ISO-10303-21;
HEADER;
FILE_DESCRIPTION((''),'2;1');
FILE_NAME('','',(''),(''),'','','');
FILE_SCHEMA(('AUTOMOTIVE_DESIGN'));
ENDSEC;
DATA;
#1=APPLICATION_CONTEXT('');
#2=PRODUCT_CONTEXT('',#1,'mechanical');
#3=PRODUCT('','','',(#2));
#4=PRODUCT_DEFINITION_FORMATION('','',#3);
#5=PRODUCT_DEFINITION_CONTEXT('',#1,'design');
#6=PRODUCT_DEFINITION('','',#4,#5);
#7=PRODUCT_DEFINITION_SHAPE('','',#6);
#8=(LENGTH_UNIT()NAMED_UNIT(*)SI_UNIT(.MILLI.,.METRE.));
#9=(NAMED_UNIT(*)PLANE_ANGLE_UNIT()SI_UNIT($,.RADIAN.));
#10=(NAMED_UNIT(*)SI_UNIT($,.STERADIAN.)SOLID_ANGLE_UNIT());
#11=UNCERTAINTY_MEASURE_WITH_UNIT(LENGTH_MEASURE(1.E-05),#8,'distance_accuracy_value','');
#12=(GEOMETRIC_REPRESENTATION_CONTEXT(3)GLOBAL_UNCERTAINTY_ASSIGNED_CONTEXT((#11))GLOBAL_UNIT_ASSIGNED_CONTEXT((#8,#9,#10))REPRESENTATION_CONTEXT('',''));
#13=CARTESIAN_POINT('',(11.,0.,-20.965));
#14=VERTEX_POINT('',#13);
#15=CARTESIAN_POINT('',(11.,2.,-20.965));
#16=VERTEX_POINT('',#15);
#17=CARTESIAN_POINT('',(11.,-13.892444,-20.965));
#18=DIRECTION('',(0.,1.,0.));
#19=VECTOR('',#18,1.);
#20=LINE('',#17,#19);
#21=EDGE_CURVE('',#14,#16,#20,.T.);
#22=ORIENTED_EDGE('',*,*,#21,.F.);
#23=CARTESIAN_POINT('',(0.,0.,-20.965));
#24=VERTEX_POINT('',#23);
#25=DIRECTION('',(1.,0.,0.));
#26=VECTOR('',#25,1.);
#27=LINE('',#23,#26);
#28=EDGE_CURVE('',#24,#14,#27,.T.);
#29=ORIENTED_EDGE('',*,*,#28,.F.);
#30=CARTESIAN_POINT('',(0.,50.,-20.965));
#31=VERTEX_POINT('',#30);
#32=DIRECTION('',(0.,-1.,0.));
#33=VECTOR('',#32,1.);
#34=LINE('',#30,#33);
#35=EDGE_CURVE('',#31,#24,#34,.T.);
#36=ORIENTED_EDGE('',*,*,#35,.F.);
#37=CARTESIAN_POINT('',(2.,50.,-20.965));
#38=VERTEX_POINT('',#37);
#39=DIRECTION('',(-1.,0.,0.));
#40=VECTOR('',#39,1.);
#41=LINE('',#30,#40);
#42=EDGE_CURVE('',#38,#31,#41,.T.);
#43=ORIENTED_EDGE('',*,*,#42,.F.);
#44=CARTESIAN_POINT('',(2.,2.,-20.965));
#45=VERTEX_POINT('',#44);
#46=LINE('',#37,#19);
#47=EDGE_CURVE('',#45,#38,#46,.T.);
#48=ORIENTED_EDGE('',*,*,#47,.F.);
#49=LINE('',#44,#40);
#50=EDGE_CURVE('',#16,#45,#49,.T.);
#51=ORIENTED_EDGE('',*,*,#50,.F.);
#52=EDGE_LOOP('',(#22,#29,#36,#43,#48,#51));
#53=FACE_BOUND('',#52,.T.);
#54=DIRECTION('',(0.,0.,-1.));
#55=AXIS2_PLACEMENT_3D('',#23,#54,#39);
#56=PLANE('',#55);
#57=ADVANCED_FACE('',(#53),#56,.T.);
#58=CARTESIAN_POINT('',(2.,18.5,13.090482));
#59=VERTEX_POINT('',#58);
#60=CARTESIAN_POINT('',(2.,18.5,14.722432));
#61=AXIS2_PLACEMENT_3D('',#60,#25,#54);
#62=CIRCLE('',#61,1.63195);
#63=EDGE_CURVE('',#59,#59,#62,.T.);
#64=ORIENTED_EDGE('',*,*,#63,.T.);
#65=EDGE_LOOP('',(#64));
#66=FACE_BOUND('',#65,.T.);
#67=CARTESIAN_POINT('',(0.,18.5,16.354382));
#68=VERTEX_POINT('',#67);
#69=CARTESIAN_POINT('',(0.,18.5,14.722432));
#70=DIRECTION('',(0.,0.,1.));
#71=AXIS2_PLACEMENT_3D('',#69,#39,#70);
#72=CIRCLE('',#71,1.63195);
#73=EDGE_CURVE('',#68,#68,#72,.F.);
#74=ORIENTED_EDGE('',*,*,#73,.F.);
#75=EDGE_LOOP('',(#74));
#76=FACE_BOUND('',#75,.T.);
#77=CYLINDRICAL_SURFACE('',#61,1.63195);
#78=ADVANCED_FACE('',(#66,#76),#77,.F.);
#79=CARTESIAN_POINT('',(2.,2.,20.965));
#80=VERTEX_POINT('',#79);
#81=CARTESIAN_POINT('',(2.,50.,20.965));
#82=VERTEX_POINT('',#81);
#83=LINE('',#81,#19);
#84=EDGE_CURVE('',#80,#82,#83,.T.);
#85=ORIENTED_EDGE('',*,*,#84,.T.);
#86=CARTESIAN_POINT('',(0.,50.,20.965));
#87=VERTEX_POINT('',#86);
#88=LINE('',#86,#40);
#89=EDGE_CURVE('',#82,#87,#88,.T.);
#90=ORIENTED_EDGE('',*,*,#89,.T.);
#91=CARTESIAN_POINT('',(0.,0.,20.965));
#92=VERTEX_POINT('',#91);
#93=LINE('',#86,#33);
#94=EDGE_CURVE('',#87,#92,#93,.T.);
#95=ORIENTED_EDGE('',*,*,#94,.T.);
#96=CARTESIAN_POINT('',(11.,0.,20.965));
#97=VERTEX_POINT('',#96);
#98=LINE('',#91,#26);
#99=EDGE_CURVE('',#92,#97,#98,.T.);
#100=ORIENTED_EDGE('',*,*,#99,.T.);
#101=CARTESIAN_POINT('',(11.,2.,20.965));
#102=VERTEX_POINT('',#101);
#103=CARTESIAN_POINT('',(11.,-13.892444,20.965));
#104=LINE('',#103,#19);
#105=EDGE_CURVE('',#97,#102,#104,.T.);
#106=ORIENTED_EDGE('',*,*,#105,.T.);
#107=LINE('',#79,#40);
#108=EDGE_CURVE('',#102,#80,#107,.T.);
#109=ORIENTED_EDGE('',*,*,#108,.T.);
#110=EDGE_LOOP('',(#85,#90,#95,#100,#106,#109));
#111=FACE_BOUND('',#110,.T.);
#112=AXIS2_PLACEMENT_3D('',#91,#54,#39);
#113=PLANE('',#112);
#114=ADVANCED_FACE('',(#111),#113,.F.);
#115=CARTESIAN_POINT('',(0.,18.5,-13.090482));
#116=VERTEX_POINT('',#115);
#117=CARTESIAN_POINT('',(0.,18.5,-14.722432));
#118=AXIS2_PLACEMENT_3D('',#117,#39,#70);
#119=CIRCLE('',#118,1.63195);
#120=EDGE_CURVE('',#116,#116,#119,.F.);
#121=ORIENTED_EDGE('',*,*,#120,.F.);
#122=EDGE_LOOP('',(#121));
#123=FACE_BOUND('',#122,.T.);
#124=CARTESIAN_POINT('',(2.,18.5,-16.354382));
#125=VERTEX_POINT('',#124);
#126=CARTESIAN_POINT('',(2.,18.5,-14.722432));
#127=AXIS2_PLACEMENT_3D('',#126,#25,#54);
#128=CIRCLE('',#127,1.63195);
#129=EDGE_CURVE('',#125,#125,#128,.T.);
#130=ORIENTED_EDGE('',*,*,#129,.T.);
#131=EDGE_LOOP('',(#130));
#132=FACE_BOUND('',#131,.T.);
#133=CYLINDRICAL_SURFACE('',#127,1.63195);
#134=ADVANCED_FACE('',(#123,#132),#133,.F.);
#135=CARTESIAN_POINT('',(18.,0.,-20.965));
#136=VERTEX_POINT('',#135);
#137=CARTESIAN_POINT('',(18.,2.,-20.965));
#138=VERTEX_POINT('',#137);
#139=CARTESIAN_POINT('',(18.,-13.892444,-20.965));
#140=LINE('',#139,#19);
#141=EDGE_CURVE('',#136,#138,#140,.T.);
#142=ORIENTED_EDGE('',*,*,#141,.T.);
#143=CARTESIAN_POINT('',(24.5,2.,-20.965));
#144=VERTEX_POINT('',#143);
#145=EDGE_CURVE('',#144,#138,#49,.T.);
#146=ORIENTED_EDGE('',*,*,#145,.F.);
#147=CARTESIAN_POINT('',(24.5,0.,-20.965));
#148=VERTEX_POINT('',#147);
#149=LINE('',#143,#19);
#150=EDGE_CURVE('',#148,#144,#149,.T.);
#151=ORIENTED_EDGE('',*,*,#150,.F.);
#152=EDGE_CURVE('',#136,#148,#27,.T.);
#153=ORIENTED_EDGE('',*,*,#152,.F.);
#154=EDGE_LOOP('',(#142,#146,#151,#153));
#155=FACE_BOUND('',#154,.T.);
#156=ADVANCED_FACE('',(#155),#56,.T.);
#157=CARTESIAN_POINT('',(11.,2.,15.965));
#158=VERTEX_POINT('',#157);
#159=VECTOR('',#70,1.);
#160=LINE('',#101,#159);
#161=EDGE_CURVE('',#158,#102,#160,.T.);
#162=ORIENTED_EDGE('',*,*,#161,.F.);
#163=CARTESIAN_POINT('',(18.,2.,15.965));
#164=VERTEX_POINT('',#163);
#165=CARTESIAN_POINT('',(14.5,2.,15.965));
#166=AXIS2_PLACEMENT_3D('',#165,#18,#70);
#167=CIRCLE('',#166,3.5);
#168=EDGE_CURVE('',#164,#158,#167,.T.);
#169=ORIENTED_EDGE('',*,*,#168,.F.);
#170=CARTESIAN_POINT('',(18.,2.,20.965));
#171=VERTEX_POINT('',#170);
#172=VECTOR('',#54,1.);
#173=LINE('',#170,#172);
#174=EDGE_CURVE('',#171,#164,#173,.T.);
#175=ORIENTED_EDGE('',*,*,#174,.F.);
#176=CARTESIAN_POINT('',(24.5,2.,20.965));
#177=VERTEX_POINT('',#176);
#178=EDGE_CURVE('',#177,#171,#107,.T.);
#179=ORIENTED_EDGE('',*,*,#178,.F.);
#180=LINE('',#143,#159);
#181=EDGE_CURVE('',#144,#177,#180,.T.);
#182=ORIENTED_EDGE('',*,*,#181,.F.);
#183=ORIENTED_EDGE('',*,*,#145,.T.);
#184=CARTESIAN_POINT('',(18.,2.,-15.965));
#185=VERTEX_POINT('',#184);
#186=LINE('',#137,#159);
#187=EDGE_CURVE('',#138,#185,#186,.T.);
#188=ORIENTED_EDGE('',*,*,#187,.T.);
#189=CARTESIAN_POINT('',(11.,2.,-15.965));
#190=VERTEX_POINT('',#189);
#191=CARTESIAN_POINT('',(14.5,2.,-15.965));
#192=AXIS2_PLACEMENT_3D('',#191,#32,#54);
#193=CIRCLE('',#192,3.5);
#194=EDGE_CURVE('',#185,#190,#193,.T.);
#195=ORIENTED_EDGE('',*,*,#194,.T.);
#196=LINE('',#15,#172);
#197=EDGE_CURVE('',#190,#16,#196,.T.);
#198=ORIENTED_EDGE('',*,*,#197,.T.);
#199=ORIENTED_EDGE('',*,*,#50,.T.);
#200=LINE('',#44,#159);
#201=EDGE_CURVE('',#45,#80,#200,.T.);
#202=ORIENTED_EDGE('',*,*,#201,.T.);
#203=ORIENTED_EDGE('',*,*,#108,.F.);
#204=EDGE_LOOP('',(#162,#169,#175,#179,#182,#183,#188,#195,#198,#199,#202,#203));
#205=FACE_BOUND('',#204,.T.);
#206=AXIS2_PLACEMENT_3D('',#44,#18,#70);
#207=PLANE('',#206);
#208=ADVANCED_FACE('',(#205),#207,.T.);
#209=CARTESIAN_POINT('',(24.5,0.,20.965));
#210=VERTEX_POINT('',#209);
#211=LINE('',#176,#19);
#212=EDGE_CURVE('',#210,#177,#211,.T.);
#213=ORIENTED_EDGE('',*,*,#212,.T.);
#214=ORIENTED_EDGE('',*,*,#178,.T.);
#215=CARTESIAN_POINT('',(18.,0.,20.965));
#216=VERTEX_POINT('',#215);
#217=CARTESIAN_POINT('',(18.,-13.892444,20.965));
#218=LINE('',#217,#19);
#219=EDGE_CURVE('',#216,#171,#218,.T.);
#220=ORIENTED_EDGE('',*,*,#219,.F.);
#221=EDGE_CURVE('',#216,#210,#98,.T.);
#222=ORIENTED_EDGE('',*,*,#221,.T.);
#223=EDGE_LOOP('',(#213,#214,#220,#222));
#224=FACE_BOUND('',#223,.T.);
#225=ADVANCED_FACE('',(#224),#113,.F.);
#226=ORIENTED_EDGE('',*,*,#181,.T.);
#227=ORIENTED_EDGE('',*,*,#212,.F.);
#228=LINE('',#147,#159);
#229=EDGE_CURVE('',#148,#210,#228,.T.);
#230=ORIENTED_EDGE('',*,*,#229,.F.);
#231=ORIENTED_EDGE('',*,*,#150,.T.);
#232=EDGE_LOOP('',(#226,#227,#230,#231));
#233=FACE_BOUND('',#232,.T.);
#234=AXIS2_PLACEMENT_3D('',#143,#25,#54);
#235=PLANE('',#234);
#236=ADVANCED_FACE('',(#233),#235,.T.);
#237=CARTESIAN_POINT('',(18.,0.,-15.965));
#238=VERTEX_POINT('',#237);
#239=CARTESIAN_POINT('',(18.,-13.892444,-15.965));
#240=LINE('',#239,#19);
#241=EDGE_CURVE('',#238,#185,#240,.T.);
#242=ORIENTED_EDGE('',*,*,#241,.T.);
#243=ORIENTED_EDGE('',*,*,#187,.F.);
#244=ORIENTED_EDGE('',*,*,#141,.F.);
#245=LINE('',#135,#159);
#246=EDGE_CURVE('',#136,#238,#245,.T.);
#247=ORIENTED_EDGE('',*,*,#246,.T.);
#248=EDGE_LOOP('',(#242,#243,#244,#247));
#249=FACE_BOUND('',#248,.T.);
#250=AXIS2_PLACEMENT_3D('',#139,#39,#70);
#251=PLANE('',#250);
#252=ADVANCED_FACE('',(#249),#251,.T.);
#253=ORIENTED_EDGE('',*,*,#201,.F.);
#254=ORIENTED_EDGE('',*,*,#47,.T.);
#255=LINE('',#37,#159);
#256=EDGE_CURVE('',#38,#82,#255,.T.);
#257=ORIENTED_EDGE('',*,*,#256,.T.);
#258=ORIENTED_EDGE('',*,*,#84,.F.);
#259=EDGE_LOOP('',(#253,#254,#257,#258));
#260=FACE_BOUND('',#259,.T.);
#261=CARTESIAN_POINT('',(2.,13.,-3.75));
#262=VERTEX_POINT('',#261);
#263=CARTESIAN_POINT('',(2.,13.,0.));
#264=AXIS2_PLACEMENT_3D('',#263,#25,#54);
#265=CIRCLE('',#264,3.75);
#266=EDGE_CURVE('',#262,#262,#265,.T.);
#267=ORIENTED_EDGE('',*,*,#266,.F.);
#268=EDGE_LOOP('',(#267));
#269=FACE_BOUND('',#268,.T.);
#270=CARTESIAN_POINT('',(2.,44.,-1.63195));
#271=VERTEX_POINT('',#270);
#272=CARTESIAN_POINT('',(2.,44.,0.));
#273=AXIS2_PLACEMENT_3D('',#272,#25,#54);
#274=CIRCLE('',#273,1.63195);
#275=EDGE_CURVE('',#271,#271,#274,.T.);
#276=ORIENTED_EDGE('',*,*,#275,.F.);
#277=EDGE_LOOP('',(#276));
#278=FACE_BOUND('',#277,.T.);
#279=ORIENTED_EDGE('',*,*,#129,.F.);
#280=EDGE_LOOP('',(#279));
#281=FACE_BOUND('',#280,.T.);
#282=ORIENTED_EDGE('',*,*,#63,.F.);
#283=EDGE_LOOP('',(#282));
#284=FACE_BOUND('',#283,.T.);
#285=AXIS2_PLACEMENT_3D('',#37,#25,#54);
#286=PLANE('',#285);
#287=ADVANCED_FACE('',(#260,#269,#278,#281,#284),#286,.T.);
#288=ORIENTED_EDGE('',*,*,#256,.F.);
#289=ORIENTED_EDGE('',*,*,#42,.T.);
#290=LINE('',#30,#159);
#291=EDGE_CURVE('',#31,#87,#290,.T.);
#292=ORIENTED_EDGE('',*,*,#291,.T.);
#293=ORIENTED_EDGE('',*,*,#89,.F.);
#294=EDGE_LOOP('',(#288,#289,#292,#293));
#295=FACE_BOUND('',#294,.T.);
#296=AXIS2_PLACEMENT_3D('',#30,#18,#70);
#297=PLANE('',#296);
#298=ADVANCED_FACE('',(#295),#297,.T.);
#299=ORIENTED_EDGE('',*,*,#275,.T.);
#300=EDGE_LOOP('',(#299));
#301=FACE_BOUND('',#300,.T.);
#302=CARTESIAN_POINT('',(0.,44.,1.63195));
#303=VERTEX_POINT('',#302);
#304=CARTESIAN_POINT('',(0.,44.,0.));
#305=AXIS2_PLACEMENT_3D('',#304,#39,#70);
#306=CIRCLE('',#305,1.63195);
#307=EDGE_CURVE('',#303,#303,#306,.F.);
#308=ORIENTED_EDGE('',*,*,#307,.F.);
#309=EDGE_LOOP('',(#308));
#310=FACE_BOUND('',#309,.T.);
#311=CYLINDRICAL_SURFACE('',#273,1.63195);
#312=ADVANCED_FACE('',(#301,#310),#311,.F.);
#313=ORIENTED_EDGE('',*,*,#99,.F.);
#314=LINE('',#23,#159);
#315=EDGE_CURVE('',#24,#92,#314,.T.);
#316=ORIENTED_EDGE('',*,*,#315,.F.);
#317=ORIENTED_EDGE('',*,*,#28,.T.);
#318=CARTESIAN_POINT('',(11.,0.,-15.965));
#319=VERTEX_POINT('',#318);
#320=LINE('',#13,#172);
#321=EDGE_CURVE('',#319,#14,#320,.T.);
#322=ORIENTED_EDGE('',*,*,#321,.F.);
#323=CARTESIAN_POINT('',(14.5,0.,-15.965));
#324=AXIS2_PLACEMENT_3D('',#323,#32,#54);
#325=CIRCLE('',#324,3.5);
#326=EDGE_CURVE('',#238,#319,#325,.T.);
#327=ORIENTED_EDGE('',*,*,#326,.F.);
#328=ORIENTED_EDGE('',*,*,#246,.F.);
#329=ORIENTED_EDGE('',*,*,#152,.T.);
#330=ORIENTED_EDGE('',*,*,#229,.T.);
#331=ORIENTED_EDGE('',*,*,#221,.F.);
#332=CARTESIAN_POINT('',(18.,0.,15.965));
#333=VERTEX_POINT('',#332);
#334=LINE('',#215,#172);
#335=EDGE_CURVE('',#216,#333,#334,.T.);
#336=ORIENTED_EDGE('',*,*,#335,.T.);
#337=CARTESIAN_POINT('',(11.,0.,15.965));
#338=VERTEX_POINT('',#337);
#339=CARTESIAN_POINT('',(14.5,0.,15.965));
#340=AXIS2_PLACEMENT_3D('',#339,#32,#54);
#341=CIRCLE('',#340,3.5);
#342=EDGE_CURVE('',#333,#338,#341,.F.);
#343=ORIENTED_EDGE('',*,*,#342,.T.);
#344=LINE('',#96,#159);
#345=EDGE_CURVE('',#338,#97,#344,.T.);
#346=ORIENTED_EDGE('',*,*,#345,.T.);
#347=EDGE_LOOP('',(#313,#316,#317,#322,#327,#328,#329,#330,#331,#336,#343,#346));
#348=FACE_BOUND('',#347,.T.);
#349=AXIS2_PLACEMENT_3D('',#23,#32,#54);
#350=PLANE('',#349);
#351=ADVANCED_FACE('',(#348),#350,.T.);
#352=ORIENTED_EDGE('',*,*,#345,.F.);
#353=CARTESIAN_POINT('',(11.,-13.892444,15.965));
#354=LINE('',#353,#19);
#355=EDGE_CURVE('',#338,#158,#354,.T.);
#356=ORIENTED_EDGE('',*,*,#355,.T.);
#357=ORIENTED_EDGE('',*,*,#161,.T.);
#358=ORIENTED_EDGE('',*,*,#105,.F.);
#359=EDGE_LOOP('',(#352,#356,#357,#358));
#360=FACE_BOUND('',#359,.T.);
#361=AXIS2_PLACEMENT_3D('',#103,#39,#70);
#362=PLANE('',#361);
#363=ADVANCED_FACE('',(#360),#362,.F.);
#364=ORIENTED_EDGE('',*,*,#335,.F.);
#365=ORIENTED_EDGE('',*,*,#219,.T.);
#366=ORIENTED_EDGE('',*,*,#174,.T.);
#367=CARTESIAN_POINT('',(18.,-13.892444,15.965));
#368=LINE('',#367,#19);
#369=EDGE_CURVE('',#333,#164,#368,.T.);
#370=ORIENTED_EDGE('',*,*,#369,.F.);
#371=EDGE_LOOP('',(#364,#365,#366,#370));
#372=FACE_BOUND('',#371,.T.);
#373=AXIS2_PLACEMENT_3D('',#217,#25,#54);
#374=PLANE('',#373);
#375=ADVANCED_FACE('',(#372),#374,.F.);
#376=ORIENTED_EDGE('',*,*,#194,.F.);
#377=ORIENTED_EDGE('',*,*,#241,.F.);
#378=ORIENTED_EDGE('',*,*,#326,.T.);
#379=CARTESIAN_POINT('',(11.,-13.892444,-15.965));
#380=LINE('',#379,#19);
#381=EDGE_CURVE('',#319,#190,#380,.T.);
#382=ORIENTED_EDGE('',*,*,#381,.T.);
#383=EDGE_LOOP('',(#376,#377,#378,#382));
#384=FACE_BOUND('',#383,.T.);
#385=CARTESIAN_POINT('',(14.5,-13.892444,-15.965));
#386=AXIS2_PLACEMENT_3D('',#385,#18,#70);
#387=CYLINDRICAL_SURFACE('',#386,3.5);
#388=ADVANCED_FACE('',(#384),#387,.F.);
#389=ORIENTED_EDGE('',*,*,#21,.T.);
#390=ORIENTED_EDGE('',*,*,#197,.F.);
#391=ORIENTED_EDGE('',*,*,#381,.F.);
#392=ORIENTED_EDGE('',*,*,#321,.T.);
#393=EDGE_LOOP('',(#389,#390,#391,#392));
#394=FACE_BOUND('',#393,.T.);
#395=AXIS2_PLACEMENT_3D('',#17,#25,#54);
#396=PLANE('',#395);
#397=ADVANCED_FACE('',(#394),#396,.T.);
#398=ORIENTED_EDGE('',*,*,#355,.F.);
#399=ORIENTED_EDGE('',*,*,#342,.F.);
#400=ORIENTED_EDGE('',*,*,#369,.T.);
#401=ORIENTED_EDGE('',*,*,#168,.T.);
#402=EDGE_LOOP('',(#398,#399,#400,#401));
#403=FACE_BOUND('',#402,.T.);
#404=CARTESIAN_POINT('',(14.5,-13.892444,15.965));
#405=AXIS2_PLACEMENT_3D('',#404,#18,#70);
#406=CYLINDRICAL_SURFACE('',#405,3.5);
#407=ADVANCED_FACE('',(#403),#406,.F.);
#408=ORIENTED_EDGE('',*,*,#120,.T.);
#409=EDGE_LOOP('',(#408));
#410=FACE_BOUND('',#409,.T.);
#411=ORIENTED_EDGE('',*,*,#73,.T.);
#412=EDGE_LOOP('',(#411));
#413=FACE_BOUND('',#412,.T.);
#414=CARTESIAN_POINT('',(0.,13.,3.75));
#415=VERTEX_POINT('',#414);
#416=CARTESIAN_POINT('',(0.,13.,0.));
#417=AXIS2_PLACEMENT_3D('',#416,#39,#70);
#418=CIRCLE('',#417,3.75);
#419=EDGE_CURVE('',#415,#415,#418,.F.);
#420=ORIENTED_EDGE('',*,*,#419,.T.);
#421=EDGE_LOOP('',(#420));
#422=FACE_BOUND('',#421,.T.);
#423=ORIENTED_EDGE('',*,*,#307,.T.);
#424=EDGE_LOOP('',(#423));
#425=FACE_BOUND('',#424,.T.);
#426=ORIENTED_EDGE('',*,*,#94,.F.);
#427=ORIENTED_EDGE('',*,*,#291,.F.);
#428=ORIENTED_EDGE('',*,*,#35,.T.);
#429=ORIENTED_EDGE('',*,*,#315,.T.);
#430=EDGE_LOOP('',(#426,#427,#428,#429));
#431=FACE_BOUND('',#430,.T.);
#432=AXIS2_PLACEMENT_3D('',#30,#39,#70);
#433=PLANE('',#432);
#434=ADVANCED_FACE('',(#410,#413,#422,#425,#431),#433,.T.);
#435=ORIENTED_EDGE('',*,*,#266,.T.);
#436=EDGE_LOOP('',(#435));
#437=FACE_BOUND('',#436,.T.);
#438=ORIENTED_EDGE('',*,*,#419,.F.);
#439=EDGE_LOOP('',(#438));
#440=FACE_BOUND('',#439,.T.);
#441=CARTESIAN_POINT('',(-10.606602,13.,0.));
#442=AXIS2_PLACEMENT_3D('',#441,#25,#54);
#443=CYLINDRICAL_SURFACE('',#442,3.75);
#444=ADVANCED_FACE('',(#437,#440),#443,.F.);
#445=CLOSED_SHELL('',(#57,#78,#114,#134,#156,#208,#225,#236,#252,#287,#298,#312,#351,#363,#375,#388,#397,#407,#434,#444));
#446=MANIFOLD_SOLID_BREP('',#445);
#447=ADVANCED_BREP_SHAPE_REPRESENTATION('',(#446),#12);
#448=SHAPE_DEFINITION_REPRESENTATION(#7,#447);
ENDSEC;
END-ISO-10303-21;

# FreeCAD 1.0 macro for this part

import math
import FreeCAD as App
import Part
import Sketcher

doc = App.newDocument("Part")
params = doc.addObject("Spreadsheet::Sheet", "Params")
for row, (alias, value) in enumerate([
    ("sketch1_width", "2 mm"),
    ("sketch1_height", "50 mm"),
    ("sketch1_width2", "24.5 mm"),
    ("pad1_length", "20.965 mm"),
    ("pad1_length2", "20.965 mm"),
    ("hole_diameter", "3.2639 mm"),
    ("sketch3_radius", "3.5 mm"),
    ("sketch3_height", "5 mm"),
    ("pocket1_length", "2 mm"),
    ("sketch4_diameter", "7.5 mm"),
    ("pocket2_length", "2 mm"),
], start=1):
    params.set(f"A{row}", alias)
    params.set(f"B{row}", "=" + value)
    params.setAlias(f"B{row}", alias)

body = doc.addObject("PartDesign::Body", "Body")

sketch1 = body.newObject("Sketcher::SketchObject", "Sketch")
sketch1.AttachmentSupport = (doc.getObject("XY_Plane"), [""])
sketch1.MapMode = "FlatFace"
sketch1.addGeometry([
    Part.LineSegment(App.Vector(0, 50, 0), App.Vector(0, 0, 0)),
    Part.LineSegment(App.Vector(0, 0, 0), App.Vector(24.5, 0, 0)),
    Part.LineSegment(App.Vector(24.5, 0, 0), App.Vector(24.5, 2, 0)),
    Part.LineSegment(App.Vector(24.5, 2, 0), App.Vector(2, 2, 0)),
    Part.LineSegment(App.Vector(2, 2, 0), App.Vector(2, 50, 0)),
    Part.LineSegment(App.Vector(2, 50, 0), App.Vector(0, 50, 0)),
], False)
sketch1.addConstraint([
    Sketcher.Constraint("Coincident", 0, 2, 1, 1),
    Sketcher.Constraint("Coincident", 1, 2, 2, 1),
    Sketcher.Constraint("Coincident", 2, 2, 3, 1),
    Sketcher.Constraint("Coincident", 3, 2, 4, 1),
    Sketcher.Constraint("Coincident", 4, 2, 5, 1),
    Sketcher.Constraint("Coincident", 5, 2, 0, 1),
    Sketcher.Constraint("Vertical", 0),
    Sketcher.Constraint("Horizontal", 1),
    Sketcher.Constraint("Vertical", 2),
    Sketcher.Constraint("Horizontal", 3),
    Sketcher.Constraint("Vertical", 4),
    Sketcher.Constraint("Horizontal", 5),
    Sketcher.Constraint("Coincident", 0, 2, -1, 1),
    Sketcher.Constraint("Equal", 5, 2),
    Sketcher.Constraint("DistanceX", 5, 2, 5, 1, 2.0),
    Sketcher.Constraint("DistanceY", 0, 2, 0, 1, 50.0),
    Sketcher.Constraint("DistanceX", 1, 1, 1, 2, 24.5),
])
sketch1.setExpression("Constraints[14]", "Params.sketch1_width")
sketch1.setExpression("Constraints[15]", "Params.sketch1_height")
sketch1.setExpression("Constraints[16]", "Params.sketch1_width2")
pad1 = body.newObject("PartDesign::Pad", "Pad")
pad1.Profile = sketch1
pad1.Type = "TwoLengths"
pad1.setExpression("Length", "Params.pad1_length")
pad1.setExpression("Length2", "Params.pad1_length2")

sketch2 = body.newObject("Sketcher::SketchObject", "Sketch001")
sketch2.AttachmentSupport = (doc.getObject("YZ_Plane"), [""])
sketch2.MapMode = "FlatFace"
sketch2.AttachmentOffset = App.Placement(App.Vector(0, 0, 2), App.Rotation())
sketch2.addGeometry([
    Part.Circle(App.Vector(44, 0, 0), App.Vector(0, 0, 1), 1.6),
    Part.Circle(App.Vector(18.5, 14.7, 0), App.Vector(0, 0, 1), 1.6),
    Part.Circle(App.Vector(18.5, -14.7, 0), App.Vector(0, 0, 1), 1.6),
], False)
sketch2.addConstraint([
    Sketcher.Constraint("Equal", 0, 1),
    Sketcher.Constraint("Equal", 1, 2),
    Sketcher.Constraint("Symmetric", 1, 3, 2, 3, -1),
    Sketcher.Constraint("PointOnObject", 0, 3, -1),
    Sketcher.Constraint("DistanceX", -1, 1, 0, 3, 44.0),
    Sketcher.Constraint("Diameter", 0, 3.2639),
    Sketcher.Constraint("DistanceX", -1, 1, 1, 3, 18.5),
    Sketcher.Constraint("DistanceY", -1, 1, 1, 3, 14.722432),
])
doc.recompute()
hole = body.newObject("PartDesign::Hole", "Hole")
hole.Profile = sketch2
hole.ThreadType = "None"
hole.setExpression("Diameter", "Params.hole_diameter")
hole.DepthType = "ThroughAll"

sketch3 = body.newObject("Sketcher::SketchObject", "Sketch002")
sketch3.AttachmentSupport = (doc.getObject("XZ_Plane"), [""])
sketch3.MapMode = "FlatFace"
sketch3.AttachmentOffset = App.Placement(App.Vector(0, 0, -2), App.Rotation())
sketch3.addGeometry([
    Part.LineSegment(App.Vector(11, 16, 0), App.Vector(11, 21, 0)),
    Part.ArcOfCircle(Part.Circle(App.Vector(14.5, 21, 0), App.Vector(0, 0, 1), 3.5), math.radians(0), math.radians(180)),
    Part.LineSegment(App.Vector(18, 21, 0), App.Vector(18, 16, 0)),
    Part.ArcOfCircle(Part.Circle(App.Vector(14.5, 16, 0), App.Vector(0, 0, 1), 3.5), math.radians(180), math.radians(360)),
], False)
sketch3.addConstraint([
    Sketcher.Constraint("Tangent", 0, 2, 1, 2),
    Sketcher.Constraint("Tangent", 1, 1, 2, 1),
    Sketcher.Constraint("Tangent", 2, 2, 3, 2),
    Sketcher.Constraint("Tangent", 3, 1, 0, 1),
    Sketcher.Constraint("Vertical", 0),
    Sketcher.Constraint("Vertical", 2),
    Sketcher.Constraint("Radius", 1, 3.5),
    Sketcher.Constraint("DistanceY", 0, 1, 0, 2, 5.0),
    Sketcher.Constraint("DistanceX", -1, 1, 0, 2, 11.0),
    Sketcher.Constraint("DistanceY", -1, 1, 1, 3, 20.965),
])
sketch3.setExpression("Constraints[6]", "Params.sketch3_radius")
sketch3.setExpression("Constraints[7]", "Params.sketch3_height")
pocket1 = body.newObject("PartDesign::Pocket", "Pocket")
pocket1.Profile = sketch3
pocket1.setExpression("Length", "Params.pocket1_length")
pocket1.Reversed = True
doc.recompute()

mirrored = body.newObject("PartDesign::Mirrored", "Mirrored")
mirrored.Originals = [pocket1]
mirrored.MirrorPlane = (doc.getObject("XY_Plane"), [""])
body.Tip = mirrored

sketch4 = body.newObject("Sketcher::SketchObject", "Sketch003")
sketch4.AttachmentSupport = (doc.getObject("YZ_Plane"), [""])
sketch4.MapMode = "FlatFace"
sketch4.AttachmentOffset = App.Placement(App.Vector(0, 0, 2), App.Rotation())
sketch4.addGeometry(Part.Circle(App.Vector(13, 0, 0), App.Vector(0, 0, 1), 3.8), False)
sketch4.addConstraint([
    Sketcher.Constraint("PointOnObject", 0, 3, -1),
    Sketcher.Constraint("Diameter", 0, 7.5),
    Sketcher.Constraint("DistanceX", -1, 1, 0, 3, 13.0),
])
sketch4.setExpression("Constraints[1]", "Params.sketch4_diameter")
pocket2 = body.newObject("PartDesign::Pocket", "Pocket001")
pocket2.Profile = sketch4
pocket2.setExpression("Length", "Params.pocket2_length")

doc.recompute()
